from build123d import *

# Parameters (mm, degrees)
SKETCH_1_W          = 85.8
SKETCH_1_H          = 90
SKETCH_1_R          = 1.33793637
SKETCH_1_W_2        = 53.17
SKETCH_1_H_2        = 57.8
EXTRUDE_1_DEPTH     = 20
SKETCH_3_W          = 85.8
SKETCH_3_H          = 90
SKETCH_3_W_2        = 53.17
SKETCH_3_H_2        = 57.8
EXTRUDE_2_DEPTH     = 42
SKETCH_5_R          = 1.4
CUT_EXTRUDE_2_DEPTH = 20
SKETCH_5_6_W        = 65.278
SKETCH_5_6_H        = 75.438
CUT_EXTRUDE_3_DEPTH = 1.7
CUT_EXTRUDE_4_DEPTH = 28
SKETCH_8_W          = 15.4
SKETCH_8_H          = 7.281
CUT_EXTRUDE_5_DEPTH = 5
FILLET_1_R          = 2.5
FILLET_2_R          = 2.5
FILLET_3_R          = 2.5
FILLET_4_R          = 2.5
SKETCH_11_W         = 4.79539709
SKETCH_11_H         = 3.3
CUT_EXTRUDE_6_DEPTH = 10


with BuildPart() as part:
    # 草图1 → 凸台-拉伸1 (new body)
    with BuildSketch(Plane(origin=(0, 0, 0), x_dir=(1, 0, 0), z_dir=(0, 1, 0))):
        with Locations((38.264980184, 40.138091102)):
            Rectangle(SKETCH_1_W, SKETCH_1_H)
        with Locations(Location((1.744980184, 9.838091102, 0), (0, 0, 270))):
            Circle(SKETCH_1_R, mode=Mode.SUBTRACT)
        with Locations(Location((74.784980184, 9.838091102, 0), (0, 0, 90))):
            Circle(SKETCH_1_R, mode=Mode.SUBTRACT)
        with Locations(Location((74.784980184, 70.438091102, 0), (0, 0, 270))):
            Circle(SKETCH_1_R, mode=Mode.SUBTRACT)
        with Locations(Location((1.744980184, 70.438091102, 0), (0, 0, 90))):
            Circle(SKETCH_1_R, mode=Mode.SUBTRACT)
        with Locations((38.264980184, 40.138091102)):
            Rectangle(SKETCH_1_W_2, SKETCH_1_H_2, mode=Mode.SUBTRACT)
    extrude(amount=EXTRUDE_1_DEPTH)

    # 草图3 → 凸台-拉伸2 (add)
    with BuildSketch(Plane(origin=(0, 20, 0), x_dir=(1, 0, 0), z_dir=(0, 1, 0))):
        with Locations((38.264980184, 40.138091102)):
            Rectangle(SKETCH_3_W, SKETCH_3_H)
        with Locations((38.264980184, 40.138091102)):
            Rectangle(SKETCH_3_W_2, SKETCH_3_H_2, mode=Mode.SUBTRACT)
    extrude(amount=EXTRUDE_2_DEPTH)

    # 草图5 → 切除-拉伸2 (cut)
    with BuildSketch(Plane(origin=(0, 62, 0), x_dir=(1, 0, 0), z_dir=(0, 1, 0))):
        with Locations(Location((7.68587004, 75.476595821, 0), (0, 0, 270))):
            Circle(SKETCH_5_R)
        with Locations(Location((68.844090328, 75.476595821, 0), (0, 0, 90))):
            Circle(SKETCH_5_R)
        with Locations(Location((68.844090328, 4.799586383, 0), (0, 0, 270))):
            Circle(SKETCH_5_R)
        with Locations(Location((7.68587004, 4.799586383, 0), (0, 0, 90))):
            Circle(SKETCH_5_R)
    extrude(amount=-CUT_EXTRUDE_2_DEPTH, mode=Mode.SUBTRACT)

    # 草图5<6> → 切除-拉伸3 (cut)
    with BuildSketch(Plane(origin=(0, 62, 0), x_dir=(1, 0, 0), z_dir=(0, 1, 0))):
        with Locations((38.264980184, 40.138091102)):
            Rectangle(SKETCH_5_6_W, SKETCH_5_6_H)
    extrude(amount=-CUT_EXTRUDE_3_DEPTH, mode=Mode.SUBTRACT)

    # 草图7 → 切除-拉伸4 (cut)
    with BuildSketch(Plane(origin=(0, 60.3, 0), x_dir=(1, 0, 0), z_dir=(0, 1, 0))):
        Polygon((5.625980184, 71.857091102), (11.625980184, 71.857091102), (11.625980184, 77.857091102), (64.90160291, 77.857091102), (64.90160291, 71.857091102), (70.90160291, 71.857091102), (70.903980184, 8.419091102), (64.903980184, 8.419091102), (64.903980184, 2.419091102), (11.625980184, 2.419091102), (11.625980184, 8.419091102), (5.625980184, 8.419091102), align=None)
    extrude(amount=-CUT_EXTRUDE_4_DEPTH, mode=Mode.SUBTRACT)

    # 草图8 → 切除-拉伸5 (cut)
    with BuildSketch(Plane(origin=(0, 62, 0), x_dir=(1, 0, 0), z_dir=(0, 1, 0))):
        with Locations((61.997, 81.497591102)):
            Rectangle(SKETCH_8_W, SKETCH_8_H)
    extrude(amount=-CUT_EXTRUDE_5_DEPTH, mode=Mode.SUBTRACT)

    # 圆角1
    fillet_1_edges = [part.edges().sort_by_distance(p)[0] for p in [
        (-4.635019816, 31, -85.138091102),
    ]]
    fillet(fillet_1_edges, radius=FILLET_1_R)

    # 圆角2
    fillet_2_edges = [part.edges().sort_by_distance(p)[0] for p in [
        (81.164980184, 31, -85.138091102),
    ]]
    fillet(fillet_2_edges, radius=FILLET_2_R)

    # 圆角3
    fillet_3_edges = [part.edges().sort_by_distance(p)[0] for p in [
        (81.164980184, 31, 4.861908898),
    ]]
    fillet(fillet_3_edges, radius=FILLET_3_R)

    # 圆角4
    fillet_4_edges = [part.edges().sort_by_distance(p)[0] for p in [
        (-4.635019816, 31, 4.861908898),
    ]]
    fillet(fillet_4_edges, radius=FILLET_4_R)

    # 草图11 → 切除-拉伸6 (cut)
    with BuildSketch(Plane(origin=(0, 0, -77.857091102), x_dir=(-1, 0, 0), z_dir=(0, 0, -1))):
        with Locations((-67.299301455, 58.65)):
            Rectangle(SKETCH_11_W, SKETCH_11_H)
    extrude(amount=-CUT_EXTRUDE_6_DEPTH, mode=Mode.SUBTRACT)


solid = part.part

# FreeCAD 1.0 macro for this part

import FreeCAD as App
import Part
import Sketcher


def edges_at(feature, points):
    """Names of the edges that pass closest to the given points."""
    edges = feature.Shape.Edges
    near = lambda p: min(range(len(edges)), key=lambda i: edges[i].distToShape(Part.Vertex(*p))[0])
    return sorted({f"Edge{near(p) + 1}" for p in points})

doc = App.newDocument("Part")
body = doc.addObject("PartDesign::Body", "Body")

# Sketch on XZ plane
sketch1 = body.newObject("Sketcher::SketchObject", "Sketch")
sketch1.AttachmentSupport = (doc.getObject("XZ_Plane"), [""])
sketch1.MapMode = "FlatFace"
sketch1.addGeometry([
    Part.LineSegment(App.Vector(-4.63502, -85.138091, 0), App.Vector(-4.63502, 4.861909, 0)),  # 0
    Part.LineSegment(App.Vector(-4.63502, 4.861909, 0), App.Vector(81.16498, 4.861909, 0)),  # 1
    Part.LineSegment(App.Vector(81.16498, 4.861909, 0), App.Vector(81.16498, -85.138091, 0)),  # 2
    Part.LineSegment(App.Vector(81.16498, -85.138091, 0), App.Vector(-4.63502, -85.138091, 0)),  # 3
    Part.Circle(App.Vector(1.74498, -9.838091, 0), App.Vector(0, 0, 1), 1.337936),  # 4
    Part.Circle(App.Vector(74.78498, -9.838091, 0), App.Vector(0, 0, 1), 1.337936),  # 5
    Part.LineSegment(App.Vector(64.84998, -11.238091, 0), App.Vector(11.67998, -11.238091, 0)),  # 6
    Part.LineSegment(App.Vector(11.67998, -11.238091, 0), App.Vector(11.67998, -69.038091, 0)),  # 7
    Part.LineSegment(App.Vector(11.67998, -69.038091, 0), App.Vector(64.84998, -69.038091, 0)),  # 8
    Part.LineSegment(App.Vector(64.84998, -69.038091, 0), App.Vector(64.84998, -11.238091, 0)),  # 9
    Part.Circle(App.Vector(1.74498, -70.438091, 0), App.Vector(0, 0, 1), 1.337936),  # 10
    Part.Circle(App.Vector(74.78498, -70.438091, 0), App.Vector(0, 0, 1), 1.337936),  # 11
], False)
sketch1.addConstraint([
    Sketcher.Constraint("Coincident", 0, 2, 1, 1),
    Sketcher.Constraint("Coincident", 1, 2, 2, 1),
    Sketcher.Constraint("Coincident", 2, 2, 3, 1),
    Sketcher.Constraint("Coincident", 3, 2, 0, 1),
    Sketcher.Constraint("Coincident", 6, 2, 7, 1),
    Sketcher.Constraint("Coincident", 7, 2, 8, 1),
    Sketcher.Constraint("Coincident", 8, 2, 9, 1),
    Sketcher.Constraint("Coincident", 9, 2, 6, 1),
    Sketcher.Constraint("Vertical", 0),
    Sketcher.Constraint("Horizontal", 1),
    Sketcher.Constraint("Vertical", 2),
    Sketcher.Constraint("Horizontal", 3),
    Sketcher.Constraint("Horizontal", 6),
    Sketcher.Constraint("Vertical", 7),
    Sketcher.Constraint("Horizontal", 8),
    Sketcher.Constraint("Vertical", 9),
    Sketcher.Constraint("Equal", 4, 5),
    Sketcher.Constraint("Equal", 5, 10),
    Sketcher.Constraint("Equal", 10, 11),
    Sketcher.Constraint("Horizontal", 4, 3, 5, 3),
    Sketcher.Constraint("Horizontal", 10, 3, 11, 3),
    Sketcher.Constraint("Vertical", 4, 3, 10, 3),
    Sketcher.Constraint("Vertical", 5, 3, 11, 3),
    Sketcher.Constraint("DistanceY", 0, 1, 0, 2, 90.0),
    Sketcher.Constraint("DistanceX", 1, 1, 1, 2, 85.8),
    Sketcher.Constraint("DistanceY", 7, 2, 7, 1, 57.8),
    Sketcher.Constraint("DistanceX", 6, 2, 6, 1, 53.17),
    Sketcher.Constraint("DistanceY", 10, 3, 4, 3, 60.6),
    Sketcher.Constraint("DistanceY", 4, 3, 0, 2, 14.7),
    Sketcher.Constraint("DistanceY", 6, 2, 4, 3, 1.4),
    Sketcher.Constraint("DistanceX", 4, 3, 5, 3, 73.04),
    Sketcher.Constraint("DistanceX", 0, 2, 4, 3, 6.38),
    Sketcher.Constraint("Diameter", 4, 2.675873),
    Sketcher.Constraint("DistanceX", 4, 3, 6, 2, 9.935),
    Sketcher.Constraint("DistanceX", -1, 1, 4, 3, 1.74498),
    Sketcher.Constraint("DistanceY", 4, 3, -1, 1, 9.838091),
])
pad1 = body.newObject("PartDesign::Pad", "Pad")
pad1.Profile = sketch1
pad1.Length = 20
pad1.Reversed = True

# Sketch on XZ plane
sketch2 = body.newObject("Sketcher::SketchObject", "Sketch001")
sketch2.AttachmentSupport = (doc.getObject("XZ_Plane"), [""])
sketch2.MapMode = "FlatFace"
sketch2.AttachmentOffset = App.Placement(App.Vector(0, 0, -20), App.Rotation())
sketch2.addGeometry([
    Part.LineSegment(App.Vector(-4.63502, -85.138091, 0), App.Vector(-4.63502, 4.861909, 0)),  # 0
    Part.LineSegment(App.Vector(-4.63502, 4.861909, 0), App.Vector(81.16498, 4.861909, 0)),  # 1
    Part.LineSegment(App.Vector(81.16498, 4.861909, 0), App.Vector(81.16498, -85.138091, 0)),  # 2
    Part.LineSegment(App.Vector(81.16498, -85.138091, 0), App.Vector(-4.63502, -85.138091, 0)),  # 3
    Part.LineSegment(App.Vector(64.84998, -11.238091, 0), App.Vector(11.67998, -11.238091, 0)),  # 4
    Part.LineSegment(App.Vector(11.67998, -11.238091, 0), App.Vector(11.67998, -69.038091, 0)),  # 5
    Part.LineSegment(App.Vector(11.67998, -69.038091, 0), App.Vector(64.84998, -69.038091, 0)),  # 6
    Part.LineSegment(App.Vector(64.84998, -69.038091, 0), App.Vector(64.84998, -11.238091, 0)),  # 7
], False)
sketch2.addConstraint([
    Sketcher.Constraint("Coincident", 0, 2, 1, 1),
    Sketcher.Constraint("Coincident", 1, 2, 2, 1),
    Sketcher.Constraint("Coincident", 2, 2, 3, 1),
    Sketcher.Constraint("Coincident", 3, 2, 0, 1),
    Sketcher.Constraint("Coincident", 4, 2, 5, 1),
    Sketcher.Constraint("Coincident", 5, 2, 6, 1),
    Sketcher.Constraint("Coincident", 6, 2, 7, 1),
    Sketcher.Constraint("Coincident", 7, 2, 4, 1),
    Sketcher.Constraint("Vertical", 0),
    Sketcher.Constraint("Horizontal", 1),
    Sketcher.Constraint("Vertical", 2),
    Sketcher.Constraint("Horizontal", 3),
    Sketcher.Constraint("Horizontal", 4),
    Sketcher.Constraint("Vertical", 5),
    Sketcher.Constraint("Horizontal", 6),
    Sketcher.Constraint("Vertical", 7),
    Sketcher.Constraint("DistanceY", 0, 1, 0, 2, 90.0),
    Sketcher.Constraint("DistanceX", 1, 1, 1, 2, 85.8),
    Sketcher.Constraint("DistanceY", 5, 2, 5, 1, 57.8),
    Sketcher.Constraint("DistanceX", 4, 2, 4, 1, 53.17),
    Sketcher.Constraint("DistanceY", 4, 2, 0, 2, 16.1),
    Sketcher.Constraint("DistanceX", 0, 2, 4, 2, 16.315),
    Sketcher.Constraint("DistanceX", 0, 2, -1, 1, 4.63502),
    Sketcher.Constraint("DistanceY", -1, 1, 0, 2, 4.861909),
])
pad2 = body.newObject("PartDesign::Pad", "Pad001")
pad2.Profile = sketch2
pad2.Length = 42
pad2.Reversed = True

# Sketch on XZ plane
sketch3 = body.newObject("Sketcher::SketchObject", "Sketch002")
sketch3.AttachmentSupport = (doc.getObject("XZ_Plane"), [""])
sketch3.MapMode = "FlatFace"
sketch3.AttachmentOffset = App.Placement(App.Vector(0, 0, -62), App.Rotation())
sketch3.addGeometry([
    Part.Circle(App.Vector(7.68587, -75.476596, 0), App.Vector(0, 0, 1), 1.4),
    Part.Circle(App.Vector(68.84409, -75.476596, 0), App.Vector(0, 0, 1), 1.4),
    Part.Circle(App.Vector(68.84409, -4.799586, 0), App.Vector(0, 0, 1), 1.4),
    Part.Circle(App.Vector(7.68587, -4.799586, 0), App.Vector(0, 0, 1), 1.4),
], False)
sketch3.addConstraint([
    Sketcher.Constraint("Equal", 0, 1),
    Sketcher.Constraint("Equal", 1, 2),
    Sketcher.Constraint("Equal", 2, 3),
    Sketcher.Constraint("Horizontal", 0, 3, 1, 3),
    Sketcher.Constraint("Horizontal", 2, 3, 3, 3),
    Sketcher.Constraint("Vertical", 1, 3, 2, 3),
    Sketcher.Constraint("Vertical", 0, 3, 3, 3),
    Sketcher.Constraint("Diameter", 0, 2.8),
    Sketcher.Constraint("DistanceX", -1, 1, 0, 3, 7.68587),
    Sketcher.Constraint("DistanceX", -1, 1, 1, 3, 68.84409),
    Sketcher.Constraint("DistanceY", 1, 3, 2, 3, 70.677009),
    Sketcher.Constraint("DistanceY", 0, 3, -1, 1, 75.476596),
])
pocket1 = body.newObject("PartDesign::Pocket", "Pocket")
pocket1.Profile = sketch3
pocket1.Length = 20
pocket1.Reversed = True

# Sketch on XZ plane
sketch4 = body.newObject("Sketcher::SketchObject", "Sketch003")
sketch4.AttachmentSupport = (doc.getObject("XZ_Plane"), [""])
sketch4.MapMode = "FlatFace"
sketch4.AttachmentOffset = App.Placement(App.Vector(0, 0, -62), App.Rotation())
sketch4.addGeometry([
    Part.LineSegment(App.Vector(5.62598, -77.857091, 0), App.Vector(5.62598, -2.419091, 0)),
    Part.LineSegment(App.Vector(5.62598, -2.419091, 0), App.Vector(70.90398, -2.419091, 0)),
    Part.LineSegment(App.Vector(70.90398, -2.419091, 0), App.Vector(70.90398, -77.857091, 0)),
    Part.LineSegment(App.Vector(70.90398, -77.857091, 0), App.Vector(5.62598, -77.857091, 0)),
], False)
sketch4.addConstraint([
    Sketcher.Constraint("Coincident", 0, 2, 1, 1),
    Sketcher.Constraint("Coincident", 1, 2, 2, 1),
    Sketcher.Constraint("Coincident", 2, 2, 3, 1),
    Sketcher.Constraint("Coincident", 3, 2, 0, 1),
    Sketcher.Constraint("Vertical", 0),
    Sketcher.Constraint("Horizontal", 1),
    Sketcher.Constraint("Vertical", 2),
    Sketcher.Constraint("Horizontal", 3),
    Sketcher.Constraint("DistanceX", 1, 1, 1, 2, 65.278),
    Sketcher.Constraint("DistanceY", 0, 1, 0, 2, 75.438),
    Sketcher.Constraint("DistanceX", -1, 1, 0, 2, 5.62598),
    Sketcher.Constraint("DistanceY", 0, 2, -1, 1, 2.419091),
])
pocket2 = body.newObject("PartDesign::Pocket", "Pocket001")
pocket2.Profile = sketch4
pocket2.Length = 1.7
pocket2.Reversed = True

# Sketch on XZ plane
sketch5 = body.newObject("Sketcher::SketchObject", "Sketch004")
sketch5.AttachmentSupport = (doc.getObject("XZ_Plane"), [""])
sketch5.MapMode = "FlatFace"
sketch5.AttachmentOffset = App.Placement(App.Vector(0, 0, -60.3), App.Rotation())
sketch5.addGeometry([
    Part.LineSegment(App.Vector(11.62598, -71.857091, 0), App.Vector(5.62598, -71.857091, 0)),  # 0
    Part.LineSegment(App.Vector(5.62598, -71.857091, 0), App.Vector(5.62598, -8.419091, 0)),  # 1
    Part.LineSegment(App.Vector(5.62598, -8.419091, 0), App.Vector(11.62598, -8.419091, 0)),  # 2
    Part.LineSegment(App.Vector(11.62598, -8.419091, 0), App.Vector(11.62598, -2.419091, 0)),  # 3
    Part.LineSegment(App.Vector(11.62598, -2.419091, 0), App.Vector(64.90398, -2.419091, 0)),  # 4
    Part.LineSegment(App.Vector(64.90398, -2.419091, 0), App.Vector(64.90398, -8.419091, 0)),  # 5
    Part.LineSegment(App.Vector(64.90398, -8.419091, 0), App.Vector(70.90398, -8.419091, 0)),  # 6
    Part.LineSegment(App.Vector(70.90398, -8.419091, 0), App.Vector(70.901603, -71.857091, 0)),  # 7
    Part.LineSegment(App.Vector(70.901603, -71.857091, 0), App.Vector(64.901603, -71.857091, 0)),  # 8
    Part.LineSegment(App.Vector(64.901603, -71.857091, 0), App.Vector(64.901603, -77.857091, 0)),  # 9
    Part.LineSegment(App.Vector(64.901603, -77.857091, 0), App.Vector(11.62598, -77.857091, 0)),  # 10
    Part.LineSegment(App.Vector(11.62598, -77.857091, 0), App.Vector(11.62598, -71.857091, 0)),  # 11
], False)
sketch5.addConstraint([
    Sketcher.Constraint("Coincident", 0, 2, 1, 1),
    Sketcher.Constraint("Coincident", 1, 2, 2, 1),
    Sketcher.Constraint("Coincident", 2, 2, 3, 1),
    Sketcher.Constraint("Coincident", 3, 2, 4, 1),
    Sketcher.Constraint("Coincident", 4, 2, 5, 1),
    Sketcher.Constraint("Coincident", 5, 2, 6, 1),
    Sketcher.Constraint("Coincident", 6, 2, 7, 1),
    Sketcher.Constraint("Coincident", 7, 2, 8, 1),
    Sketcher.Constraint("Coincident", 8, 2, 9, 1),
    Sketcher.Constraint("Coincident", 9, 2, 10, 1),
    Sketcher.Constraint("Coincident", 10, 2, 11, 1),
    Sketcher.Constraint("Coincident", 11, 2, 0, 1),
    Sketcher.Constraint("Horizontal", 0),
    Sketcher.Constraint("Vertical", 1),
    Sketcher.Constraint("Horizontal", 2),
    Sketcher.Constraint("Vertical", 3),
    Sketcher.Constraint("Horizontal", 4),
    Sketcher.Constraint("Vertical", 5),
    Sketcher.Constraint("Horizontal", 6),
    Sketcher.Constraint("Horizontal", 8),
    Sketcher.Constraint("Vertical", 9),
    Sketcher.Constraint("Horizontal", 10),
    Sketcher.Constraint("Vertical", 11),
    Sketcher.Constraint("Horizontal", 2, 2, 5, 2),
    Sketcher.Constraint("Horizontal", 0, 2, 7, 2),
    Sketcher.Constraint("Vertical", 3, 2, 10, 2),
    Sketcher.Constraint("Equal", 2, 6),
    Sketcher.Constraint("Equal", 6, 8),
    Sketcher.Constraint("Equal", 8, 3),
    Sketcher.Constraint("Equal", 5, 9),
    Sketcher.Constraint("DistanceX", 0, 2, 0, 1, 6.0),
    Sketcher.Constraint("DistanceX", 4, 1, 4, 2, 53.278),
    Sketcher.Constraint("DistanceY", 1, 1, 1, 2, 63.438),
    Sketcher.Constraint("DistanceX", 10, 2, 10, 1, 53.275623),
    Sketcher.Constraint("DistanceX", -1, 1, 0, 2, 5.62598),
    Sketcher.Constraint("DistanceY", 0, 2, -1, 1, 71.857091),
])
pocket3 = body.newObject("PartDesign::Pocket", "Pocket002")
pocket3.Profile = sketch5
pocket3.Length = 28
pocket3.Reversed = True

# Sketch on XZ plane
sketch6 = body.newObject("Sketcher::SketchObject", "Sketch005")
sketch6.AttachmentSupport = (doc.getObject("XZ_Plane"), [""])
sketch6.MapMode = "FlatFace"
sketch6.AttachmentOffset = App.Placement(App.Vector(0, 0, -62), App.Rotation())
sketch6.addGeometry([
    Part.LineSegment(App.Vector(54.297, -85.138091, 0), App.Vector(54.297, -77.857091, 0)),
    Part.LineSegment(App.Vector(54.297, -77.857091, 0), App.Vector(69.697, -77.857091, 0)),
    Part.LineSegment(App.Vector(69.697, -77.857091, 0), App.Vector(69.697, -85.138091, 0)),
    Part.LineSegment(App.Vector(69.697, -85.138091, 0), App.Vector(54.297, -85.138091, 0)),
], False)
sketch6.addConstraint([
    Sketcher.Constraint("Coincident", 0, 2, 1, 1),
    Sketcher.Constraint("Coincident", 1, 2, 2, 1),
    Sketcher.Constraint("Coincident", 2, 2, 3, 1),
    Sketcher.Constraint("Coincident", 3, 2, 0, 1),
    Sketcher.Constraint("Vertical", 0),
    Sketcher.Constraint("Horizontal", 1),
    Sketcher.Constraint("Vertical", 2),
    Sketcher.Constraint("Horizontal", 3),
    Sketcher.Constraint("DistanceX", 1, 1, 1, 2, 15.4),
    Sketcher.Constraint("DistanceY", 0, 1, 0, 2, 7.281),
    Sketcher.Constraint("DistanceX", -1, 1, 0, 2, 54.297),
    Sketcher.Constraint("DistanceY", 0, 2, -1, 1, 77.857091),
])
pocket4 = body.newObject("PartDesign::Pocket", "Pocket003")
pocket4.Profile = sketch6
pocket4.Length = 5
pocket4.Reversed = True
doc.recompute()

fillet = body.newObject("PartDesign::Fillet", "Fillet")
fillet.Base = (pocket4, edges_at(pocket4, [(-4.635, 31, -85.138)]))
fillet.Radius = 2.5
doc.recompute()

fillet2 = body.newObject("PartDesign::Fillet", "Fillet001")
fillet2.Base = (fillet, edges_at(fillet, [(81.165, 31, -85.138)]))
fillet2.Radius = 2.5
doc.recompute()

fillet3 = body.newObject("PartDesign::Fillet", "Fillet002")
fillet3.Base = (fillet2, edges_at(fillet2, [(81.165, 31, 4.862)]))
fillet3.Radius = 2.5
doc.recompute()

fillet4 = body.newObject("PartDesign::Fillet", "Fillet003")
fillet4.Base = (fillet3, edges_at(fillet3, [(-4.635, 31, 4.862)]))
fillet4.Radius = 2.5

# Sketch on XY plane
sketch7 = body.newObject("Sketcher::SketchObject", "Sketch006")
sketch7.AttachmentSupport = (doc.getObject("XY_Plane"), [""])
sketch7.MapMode = "FlatFace"
sketch7.AttachmentOffset = App.Placement(App.Vector(0, 0, -77.857091), App.Rotation())
sketch7.addGeometry([
    Part.LineSegment(App.Vector(69.697, 60.3, 0), App.Vector(69.697, 57, 0)),
    Part.LineSegment(App.Vector(69.697, 57, 0), App.Vector(64.901603, 57, 0)),
    Part.LineSegment(App.Vector(64.901603, 57, 0), App.Vector(64.901603, 60.3, 0)),
    Part.LineSegment(App.Vector(64.901603, 60.3, 0), App.Vector(69.697, 60.3, 0)),
], False)
sketch7.addConstraint([
    Sketcher.Constraint("Coincident", 0, 2, 1, 1),
    Sketcher.Constraint("Coincident", 1, 2, 2, 1),
    Sketcher.Constraint("Coincident", 2, 2, 3, 1),
    Sketcher.Constraint("Coincident", 3, 2, 0, 1),
    Sketcher.Constraint("Vertical", 0),
    Sketcher.Constraint("Horizontal", 1),
    Sketcher.Constraint("Vertical", 2),
    Sketcher.Constraint("Horizontal", 3),
    Sketcher.Constraint("DistanceY", 0, 2, 0, 1, 3.3),
    Sketcher.Constraint("DistanceY", -1, 1, 0, 2, 57.0),
    Sketcher.Constraint("DistanceX", -1, 1, 0, 2, 69.697),
    Sketcher.Constraint("DistanceX", 1, 2, 1, 1, 4.795397),
])
pocket5 = body.newObject("PartDesign::Pocket", "Pocket004")
pocket5.Profile = sketch7
pocket5.Length = 10
pocket5.Reversed = True

doc.recompute()
